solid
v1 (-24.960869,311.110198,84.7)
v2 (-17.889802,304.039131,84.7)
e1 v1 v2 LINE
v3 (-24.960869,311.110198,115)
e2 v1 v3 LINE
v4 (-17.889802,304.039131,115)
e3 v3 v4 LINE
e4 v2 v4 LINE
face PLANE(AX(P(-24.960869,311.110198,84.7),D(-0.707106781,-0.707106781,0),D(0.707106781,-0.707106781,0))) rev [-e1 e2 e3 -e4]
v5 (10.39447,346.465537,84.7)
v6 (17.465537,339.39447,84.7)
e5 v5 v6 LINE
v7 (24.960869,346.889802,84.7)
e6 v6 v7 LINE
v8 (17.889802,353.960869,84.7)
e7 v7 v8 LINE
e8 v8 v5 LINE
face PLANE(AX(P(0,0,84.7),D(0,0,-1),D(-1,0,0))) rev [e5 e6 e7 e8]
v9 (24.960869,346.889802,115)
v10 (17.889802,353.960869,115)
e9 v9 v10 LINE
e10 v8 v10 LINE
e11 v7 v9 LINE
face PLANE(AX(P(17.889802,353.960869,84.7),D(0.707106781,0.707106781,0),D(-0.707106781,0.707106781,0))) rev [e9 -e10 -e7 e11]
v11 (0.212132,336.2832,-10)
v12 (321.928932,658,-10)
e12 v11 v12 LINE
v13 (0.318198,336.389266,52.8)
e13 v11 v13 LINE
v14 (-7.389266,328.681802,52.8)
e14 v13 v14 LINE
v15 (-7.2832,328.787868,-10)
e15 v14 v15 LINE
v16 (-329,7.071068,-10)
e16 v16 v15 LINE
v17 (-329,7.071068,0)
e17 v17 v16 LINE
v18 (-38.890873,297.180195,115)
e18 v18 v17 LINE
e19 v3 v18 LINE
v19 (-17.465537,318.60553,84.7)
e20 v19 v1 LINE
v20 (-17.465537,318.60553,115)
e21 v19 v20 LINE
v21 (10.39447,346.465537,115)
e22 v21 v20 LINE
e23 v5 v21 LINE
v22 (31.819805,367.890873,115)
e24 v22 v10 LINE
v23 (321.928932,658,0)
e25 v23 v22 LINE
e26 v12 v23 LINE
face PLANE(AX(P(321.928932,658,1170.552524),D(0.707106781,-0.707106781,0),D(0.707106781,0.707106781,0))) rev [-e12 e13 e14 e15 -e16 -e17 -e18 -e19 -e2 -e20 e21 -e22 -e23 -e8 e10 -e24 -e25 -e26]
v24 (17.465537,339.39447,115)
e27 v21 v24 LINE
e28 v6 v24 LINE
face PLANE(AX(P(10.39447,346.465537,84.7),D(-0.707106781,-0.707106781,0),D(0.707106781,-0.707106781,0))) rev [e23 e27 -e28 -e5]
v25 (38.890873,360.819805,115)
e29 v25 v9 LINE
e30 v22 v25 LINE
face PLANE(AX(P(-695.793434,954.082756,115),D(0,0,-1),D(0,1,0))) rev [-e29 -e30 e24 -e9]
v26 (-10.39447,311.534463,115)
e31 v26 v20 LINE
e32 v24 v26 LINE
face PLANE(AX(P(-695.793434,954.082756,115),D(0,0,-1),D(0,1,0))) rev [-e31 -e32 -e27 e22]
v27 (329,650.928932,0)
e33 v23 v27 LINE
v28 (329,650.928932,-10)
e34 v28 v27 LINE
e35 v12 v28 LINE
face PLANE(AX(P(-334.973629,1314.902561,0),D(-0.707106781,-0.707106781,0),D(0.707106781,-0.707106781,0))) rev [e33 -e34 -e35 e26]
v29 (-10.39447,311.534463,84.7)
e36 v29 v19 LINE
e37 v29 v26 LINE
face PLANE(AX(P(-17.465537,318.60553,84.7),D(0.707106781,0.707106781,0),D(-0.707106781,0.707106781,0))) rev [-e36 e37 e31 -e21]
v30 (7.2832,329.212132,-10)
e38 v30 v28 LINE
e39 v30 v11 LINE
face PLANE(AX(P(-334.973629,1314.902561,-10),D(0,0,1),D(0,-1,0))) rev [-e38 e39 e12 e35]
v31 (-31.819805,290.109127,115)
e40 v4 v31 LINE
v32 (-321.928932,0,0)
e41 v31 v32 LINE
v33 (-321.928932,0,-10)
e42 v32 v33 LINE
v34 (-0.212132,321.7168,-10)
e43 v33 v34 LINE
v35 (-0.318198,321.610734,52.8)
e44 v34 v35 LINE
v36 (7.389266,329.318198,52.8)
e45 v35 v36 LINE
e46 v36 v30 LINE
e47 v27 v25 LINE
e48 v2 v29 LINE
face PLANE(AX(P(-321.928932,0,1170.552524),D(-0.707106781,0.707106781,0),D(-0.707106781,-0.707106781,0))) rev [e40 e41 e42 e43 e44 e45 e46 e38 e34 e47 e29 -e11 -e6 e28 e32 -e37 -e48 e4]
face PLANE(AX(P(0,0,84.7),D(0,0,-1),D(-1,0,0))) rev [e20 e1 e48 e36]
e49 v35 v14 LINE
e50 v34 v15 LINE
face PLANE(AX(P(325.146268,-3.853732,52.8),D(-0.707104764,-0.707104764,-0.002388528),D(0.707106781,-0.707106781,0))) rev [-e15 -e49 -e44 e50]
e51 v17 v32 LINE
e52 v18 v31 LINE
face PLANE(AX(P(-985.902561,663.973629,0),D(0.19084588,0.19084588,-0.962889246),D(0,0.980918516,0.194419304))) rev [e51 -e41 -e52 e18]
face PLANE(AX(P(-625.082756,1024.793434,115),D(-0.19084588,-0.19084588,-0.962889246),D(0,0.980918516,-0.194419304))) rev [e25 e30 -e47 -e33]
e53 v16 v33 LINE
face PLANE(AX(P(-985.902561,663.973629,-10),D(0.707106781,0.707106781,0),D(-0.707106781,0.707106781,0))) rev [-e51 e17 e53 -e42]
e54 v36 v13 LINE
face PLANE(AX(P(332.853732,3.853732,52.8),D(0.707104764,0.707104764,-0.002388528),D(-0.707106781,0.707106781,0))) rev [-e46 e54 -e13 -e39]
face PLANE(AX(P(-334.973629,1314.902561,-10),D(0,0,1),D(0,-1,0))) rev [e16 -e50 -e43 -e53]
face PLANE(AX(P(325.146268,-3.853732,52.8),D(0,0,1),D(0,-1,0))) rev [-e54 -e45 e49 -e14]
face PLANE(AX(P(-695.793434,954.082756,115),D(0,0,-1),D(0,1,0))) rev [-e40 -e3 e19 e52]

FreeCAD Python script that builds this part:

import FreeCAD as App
import Part
import Sketcher
Q = App.Units.Quantity

doc = App.newDocument("Part")
body = doc.addObject("PartDesign::Body", "Body")

sketch1 = body.newObject("Sketcher::SketchObject", "Sketch")
sketch1.Placement = App.Placement(App.Vector(164.5, 164.5, 0), App.Rotation(App.Vector(-0.707106781, 0.707106781, 0), App.Vector(0, 0, -0.999999999), App.Vector(-0.707106781, -0.707106781, 0), "ZXY"))
sketch1.addGeometry(Part.LineSegment(App.Vector(183, -115, 0), App.Vector(283, -115, 0)), False)
sketch1.addGeometry(Part.LineSegment(App.Vector(283, -115, 0), App.Vector(693, 0, 0)), False)
sketch1.addGeometry(Part.LineSegment(App.Vector(693, 0, 0), App.Vector(693, 10, 0)), False)
sketch1.addGeometry(Part.LineSegment(App.Vector(693, 10, 0), App.Vector(-228, 10, 0)), False)
sketch1.addGeometry(Part.LineSegment(App.Vector(-228, 10, 0), App.Vector(-228, 0, 0)), False)
sketch1.addGeometry(Part.LineSegment(App.Vector(-228, 0, 0), App.Vector(183, -115, 0)), False)
sketch1.addConstraint(Sketcher.Constraint("Coincident", 0, 2, 1, 1))
sketch1.addConstraint(Sketcher.Constraint("Coincident", 1, 2, 2, 1))
sketch1.addConstraint(Sketcher.Constraint("Coincident", 2, 2, 3, 1))
sketch1.addConstraint(Sketcher.Constraint("Coincident", 3, 2, 4, 1))
sketch1.addConstraint(Sketcher.Constraint("Coincident", 4, 2, 5, 1))
sketch1.addConstraint(Sketcher.Constraint("Coincident", 5, 2, 0, 1))
sketch1.addConstraint(Sketcher.Constraint("Horizontal", 0))
sketch1.addConstraint(Sketcher.Constraint("Vertical", 2))
sketch1.addConstraint(Sketcher.Constraint("Horizontal", 3))
sketch1.addConstraint(Sketcher.Constraint("Vertical", 4))
sketch1.addConstraint(Sketcher.Constraint("PointOnObject", 1, 2, -1))
sketch1.addConstraint(Sketcher.Constraint("PointOnObject", 4, 2, -1))
sketch1.addConstraint(Sketcher.Constraint("Equal", 1, 5))
sketch1.addConstraint(Sketcher.Constraint("DistanceX", 0, 1, 0, 2, 100.0))
sketch1.addConstraint(Sketcher.Constraint("DistanceY", 2, 1, 2, 2, 10.0))
sketch1.addConstraint(Sketcher.Constraint("DistanceY", 0, 2, -1, 1, 115.0))
sketch1.addConstraint(Sketcher.Constraint("DistanceX", 3, 2, 3, 1, 920.552524))
sketch1.addConstraint(Sketcher.Constraint("DistanceX", -1, 1, 0, 2, 282.638131))
pad1 = body.newObject("PartDesign::Pad", "Pad")
pad1.Profile = sketch1
pad1.Type = "TwoLengths"
pad1.Length = 5
pad1.Length2 = 5
body2 = doc.addObject("PartDesign::Body", "Body001")
doc.recompute()

body.Placement = App.Placement(App.Vector(-329, 329, 0), App.Rotation(App.Vector(0, 0, -1), 90))
boolean = body2.newObject("PartDesign::Boolean", "Boolean")
boolean.Type = "Fuse"
boolean.addObjects([body])

sketch2 = body2.newObject("Sketcher::SketchObject", "Sketch001")
sketch2.Placement = App.Placement(App.Vector(-164.5, 164.5, 0), App.Rotation(App.Vector(0.680413817, 0.680413817, 0.272165527), App.Vector(0.19245009, 0.19245009, -0.962250448), App.Vector(-0.707106781, 0.707106781, 0), "ZXY"))
sketch2.addGeometry(Part.LineSegment(App.Vector(226.234418, 74.381061, 0), App.Vector(216.034563, 71.496107, 0)), False)
sketch2.addGeometry(Part.LineSegment(App.Vector(216.034563, 71.496107, 0), App.Vector(232.982221, 11.025954, 0)), False)
sketch2.addGeometry(Part.LineSegment(App.Vector(232.982221, 11.025954, 0), App.Vector(243.47075, 13.992558, 0)), False)
sketch2.addGeometry(Part.LineSegment(App.Vector(243.47075, 13.992558, 0), App.Vector(226.234418, 74.381061, 0)), False)
sketch2.addConstraint(Sketcher.Constraint("Coincident", 0, 2, 1, 1))
sketch2.addConstraint(Sketcher.Constraint("Coincident", 1, 2, 2, 1))
sketch2.addConstraint(Sketcher.Constraint("Coincident", 2, 2, 3, 1))
sketch2.addConstraint(Sketcher.Constraint("Coincident", 3, 2, 0, 1))
sketch2.addConstraint(Sketcher.Constraint("Parallel", 0, 2))
sketch2.addConstraint(Sketcher.Constraint("Equal", 1, 3))
sketch2.addConstraint(Sketcher.Constraint("Distance", 0, 10.6))
sketch2.addConstraint(Sketcher.Constraint("Distance", 2, 10.9))
sketch2.addConstraint(Sketcher.Constraint("Distance", 1, 62.800179))
sketch2.addConstraint(Sketcher.Constraint("DistanceX", -1, 1, 1, 2, 232.982221))
sketch2.addConstraint(Sketcher.Constraint("DistanceX", -1, 1, 2, 2, 243.47075))
sketch2.addConstraint(Sketcher.Constraint("DistanceY", -1, 1, 3, 2, 74.381061))
pocket1 = body2.newObject("PartDesign::Pocket", "Pocket")
pocket1.Profile = sketch2
pocket1.Type = "ThroughAll"
pocket1.Midplane = True

sketch3 = body2.newObject("Sketcher::SketchObject", "Sketch002")
sketch3.AttachmentSupport = (doc.getObject("XY_Plane001"), [""])
sketch3.MapMode = "FlatFace"
sketch3.AttachmentOffset = App.Placement(App.Vector(0, 0, 115), App.Rotation())
sketch3.addGeometry(Part.LineSegment(App.Vector(-25, 311, 0), App.Vector(-18, 304, 0)), False)
sketch3.addGeometry(Part.LineSegment(App.Vector(-18, 304, 0), App.Vector(-10, 312, 0)), False)
sketch3.addGeometry(Part.LineSegment(App.Vector(-10, 312, 0), App.Vector(-17, 319, 0)), False)
sketch3.addGeometry(Part.LineSegment(App.Vector(-17, 319, 0), App.Vector(-25, 311, 0)), False)
sketch3.addGeometry(Part.LineSegment(App.Vector(10, 346, 0), App.Vector(17, 339, 0)), False)
sketch3.addGeometry(Part.LineSegment(App.Vector(17, 339, 0), App.Vector(25, 347, 0)), False)
sketch3.addGeometry(Part.LineSegment(App.Vector(25, 347, 0), App.Vector(18, 354, 0)), False)
sketch3.addGeometry(Part.LineSegment(App.Vector(18, 354, 0), App.Vector(10, 346, 0)), False)
sketch3.addConstraint(Sketcher.Constraint("Coincident", 0, 2, 1, 1))
sketch3.addConstraint(Sketcher.Constraint("Coincident", 1, 2, 2, 1))
sketch3.addConstraint(Sketcher.Constraint("Coincident", 2, 2, 3, 1))
sketch3.addConstraint(Sketcher.Constraint("Coincident", 3, 2, 0, 1))
sketch3.addConstraint(Sketcher.Constraint("Coincident", 4, 2, 5, 1))
sketch3.addConstraint(Sketcher.Constraint("Coincident", 5, 2, 6, 1))
sketch3.addConstraint(Sketcher.Constraint("Coincident", 6, 2, 7, 1))
sketch3.addConstraint(Sketcher.Constraint("Coincident", 7, 2, 4, 1))
sketch3.addConstraint(Sketcher.Constraint("Perpendicular", 0, 1))
sketch3.addConstraint(Sketcher.Constraint("Perpendicular", 1, 2))
sketch3.addConstraint(Sketcher.Constraint("Perpendicular", 2, 3))
sketch3.addConstraint(Sketcher.Constraint("Perpendicular", 3, 4))
sketch3.addConstraint(Sketcher.Constraint("Perpendicular", 4, 5))
sketch3.addConstraint(Sketcher.Constraint("Perpendicular", 5, 6))
sketch3.addConstraint(Sketcher.Constraint("Perpendicular", 6, 7))
sketch3.addConstraint(Sketcher.Constraint("Equal", 2, 4))
sketch3.addConstraint(Sketcher.Constraint("Equal", 3, 5))
sketch3.addConstraint(Sketcher.Constraint("Angle", 0, Q("-45 deg")))
sketch3.addConstraint(Sketcher.Constraint("Distance", 0, 10.0))
sketch3.addConstraint(Sketcher.Constraint("Distance", 1, 10.6))
sketch3.addConstraint(Sketcher.Constraint("DistanceX", 0, 2, -1, 1, 17.889802))
sketch3.addConstraint(Sketcher.Constraint("DistanceY", -1, 1, 3, 2, 311.110198))
sketch3.addConstraint(Sketcher.Constraint("DistanceY", -1, 1, 5, 2, 346.889802))
sketch3.addConstraint(Sketcher.Constraint("DistanceX", -1, 1, 6, 2, 17.889802))
pocket2 = body2.newObject("PartDesign::Pocket", "Pocket001")
pocket2.Profile = sketch3
pocket2.Length = 30.3

doc.recompute()
